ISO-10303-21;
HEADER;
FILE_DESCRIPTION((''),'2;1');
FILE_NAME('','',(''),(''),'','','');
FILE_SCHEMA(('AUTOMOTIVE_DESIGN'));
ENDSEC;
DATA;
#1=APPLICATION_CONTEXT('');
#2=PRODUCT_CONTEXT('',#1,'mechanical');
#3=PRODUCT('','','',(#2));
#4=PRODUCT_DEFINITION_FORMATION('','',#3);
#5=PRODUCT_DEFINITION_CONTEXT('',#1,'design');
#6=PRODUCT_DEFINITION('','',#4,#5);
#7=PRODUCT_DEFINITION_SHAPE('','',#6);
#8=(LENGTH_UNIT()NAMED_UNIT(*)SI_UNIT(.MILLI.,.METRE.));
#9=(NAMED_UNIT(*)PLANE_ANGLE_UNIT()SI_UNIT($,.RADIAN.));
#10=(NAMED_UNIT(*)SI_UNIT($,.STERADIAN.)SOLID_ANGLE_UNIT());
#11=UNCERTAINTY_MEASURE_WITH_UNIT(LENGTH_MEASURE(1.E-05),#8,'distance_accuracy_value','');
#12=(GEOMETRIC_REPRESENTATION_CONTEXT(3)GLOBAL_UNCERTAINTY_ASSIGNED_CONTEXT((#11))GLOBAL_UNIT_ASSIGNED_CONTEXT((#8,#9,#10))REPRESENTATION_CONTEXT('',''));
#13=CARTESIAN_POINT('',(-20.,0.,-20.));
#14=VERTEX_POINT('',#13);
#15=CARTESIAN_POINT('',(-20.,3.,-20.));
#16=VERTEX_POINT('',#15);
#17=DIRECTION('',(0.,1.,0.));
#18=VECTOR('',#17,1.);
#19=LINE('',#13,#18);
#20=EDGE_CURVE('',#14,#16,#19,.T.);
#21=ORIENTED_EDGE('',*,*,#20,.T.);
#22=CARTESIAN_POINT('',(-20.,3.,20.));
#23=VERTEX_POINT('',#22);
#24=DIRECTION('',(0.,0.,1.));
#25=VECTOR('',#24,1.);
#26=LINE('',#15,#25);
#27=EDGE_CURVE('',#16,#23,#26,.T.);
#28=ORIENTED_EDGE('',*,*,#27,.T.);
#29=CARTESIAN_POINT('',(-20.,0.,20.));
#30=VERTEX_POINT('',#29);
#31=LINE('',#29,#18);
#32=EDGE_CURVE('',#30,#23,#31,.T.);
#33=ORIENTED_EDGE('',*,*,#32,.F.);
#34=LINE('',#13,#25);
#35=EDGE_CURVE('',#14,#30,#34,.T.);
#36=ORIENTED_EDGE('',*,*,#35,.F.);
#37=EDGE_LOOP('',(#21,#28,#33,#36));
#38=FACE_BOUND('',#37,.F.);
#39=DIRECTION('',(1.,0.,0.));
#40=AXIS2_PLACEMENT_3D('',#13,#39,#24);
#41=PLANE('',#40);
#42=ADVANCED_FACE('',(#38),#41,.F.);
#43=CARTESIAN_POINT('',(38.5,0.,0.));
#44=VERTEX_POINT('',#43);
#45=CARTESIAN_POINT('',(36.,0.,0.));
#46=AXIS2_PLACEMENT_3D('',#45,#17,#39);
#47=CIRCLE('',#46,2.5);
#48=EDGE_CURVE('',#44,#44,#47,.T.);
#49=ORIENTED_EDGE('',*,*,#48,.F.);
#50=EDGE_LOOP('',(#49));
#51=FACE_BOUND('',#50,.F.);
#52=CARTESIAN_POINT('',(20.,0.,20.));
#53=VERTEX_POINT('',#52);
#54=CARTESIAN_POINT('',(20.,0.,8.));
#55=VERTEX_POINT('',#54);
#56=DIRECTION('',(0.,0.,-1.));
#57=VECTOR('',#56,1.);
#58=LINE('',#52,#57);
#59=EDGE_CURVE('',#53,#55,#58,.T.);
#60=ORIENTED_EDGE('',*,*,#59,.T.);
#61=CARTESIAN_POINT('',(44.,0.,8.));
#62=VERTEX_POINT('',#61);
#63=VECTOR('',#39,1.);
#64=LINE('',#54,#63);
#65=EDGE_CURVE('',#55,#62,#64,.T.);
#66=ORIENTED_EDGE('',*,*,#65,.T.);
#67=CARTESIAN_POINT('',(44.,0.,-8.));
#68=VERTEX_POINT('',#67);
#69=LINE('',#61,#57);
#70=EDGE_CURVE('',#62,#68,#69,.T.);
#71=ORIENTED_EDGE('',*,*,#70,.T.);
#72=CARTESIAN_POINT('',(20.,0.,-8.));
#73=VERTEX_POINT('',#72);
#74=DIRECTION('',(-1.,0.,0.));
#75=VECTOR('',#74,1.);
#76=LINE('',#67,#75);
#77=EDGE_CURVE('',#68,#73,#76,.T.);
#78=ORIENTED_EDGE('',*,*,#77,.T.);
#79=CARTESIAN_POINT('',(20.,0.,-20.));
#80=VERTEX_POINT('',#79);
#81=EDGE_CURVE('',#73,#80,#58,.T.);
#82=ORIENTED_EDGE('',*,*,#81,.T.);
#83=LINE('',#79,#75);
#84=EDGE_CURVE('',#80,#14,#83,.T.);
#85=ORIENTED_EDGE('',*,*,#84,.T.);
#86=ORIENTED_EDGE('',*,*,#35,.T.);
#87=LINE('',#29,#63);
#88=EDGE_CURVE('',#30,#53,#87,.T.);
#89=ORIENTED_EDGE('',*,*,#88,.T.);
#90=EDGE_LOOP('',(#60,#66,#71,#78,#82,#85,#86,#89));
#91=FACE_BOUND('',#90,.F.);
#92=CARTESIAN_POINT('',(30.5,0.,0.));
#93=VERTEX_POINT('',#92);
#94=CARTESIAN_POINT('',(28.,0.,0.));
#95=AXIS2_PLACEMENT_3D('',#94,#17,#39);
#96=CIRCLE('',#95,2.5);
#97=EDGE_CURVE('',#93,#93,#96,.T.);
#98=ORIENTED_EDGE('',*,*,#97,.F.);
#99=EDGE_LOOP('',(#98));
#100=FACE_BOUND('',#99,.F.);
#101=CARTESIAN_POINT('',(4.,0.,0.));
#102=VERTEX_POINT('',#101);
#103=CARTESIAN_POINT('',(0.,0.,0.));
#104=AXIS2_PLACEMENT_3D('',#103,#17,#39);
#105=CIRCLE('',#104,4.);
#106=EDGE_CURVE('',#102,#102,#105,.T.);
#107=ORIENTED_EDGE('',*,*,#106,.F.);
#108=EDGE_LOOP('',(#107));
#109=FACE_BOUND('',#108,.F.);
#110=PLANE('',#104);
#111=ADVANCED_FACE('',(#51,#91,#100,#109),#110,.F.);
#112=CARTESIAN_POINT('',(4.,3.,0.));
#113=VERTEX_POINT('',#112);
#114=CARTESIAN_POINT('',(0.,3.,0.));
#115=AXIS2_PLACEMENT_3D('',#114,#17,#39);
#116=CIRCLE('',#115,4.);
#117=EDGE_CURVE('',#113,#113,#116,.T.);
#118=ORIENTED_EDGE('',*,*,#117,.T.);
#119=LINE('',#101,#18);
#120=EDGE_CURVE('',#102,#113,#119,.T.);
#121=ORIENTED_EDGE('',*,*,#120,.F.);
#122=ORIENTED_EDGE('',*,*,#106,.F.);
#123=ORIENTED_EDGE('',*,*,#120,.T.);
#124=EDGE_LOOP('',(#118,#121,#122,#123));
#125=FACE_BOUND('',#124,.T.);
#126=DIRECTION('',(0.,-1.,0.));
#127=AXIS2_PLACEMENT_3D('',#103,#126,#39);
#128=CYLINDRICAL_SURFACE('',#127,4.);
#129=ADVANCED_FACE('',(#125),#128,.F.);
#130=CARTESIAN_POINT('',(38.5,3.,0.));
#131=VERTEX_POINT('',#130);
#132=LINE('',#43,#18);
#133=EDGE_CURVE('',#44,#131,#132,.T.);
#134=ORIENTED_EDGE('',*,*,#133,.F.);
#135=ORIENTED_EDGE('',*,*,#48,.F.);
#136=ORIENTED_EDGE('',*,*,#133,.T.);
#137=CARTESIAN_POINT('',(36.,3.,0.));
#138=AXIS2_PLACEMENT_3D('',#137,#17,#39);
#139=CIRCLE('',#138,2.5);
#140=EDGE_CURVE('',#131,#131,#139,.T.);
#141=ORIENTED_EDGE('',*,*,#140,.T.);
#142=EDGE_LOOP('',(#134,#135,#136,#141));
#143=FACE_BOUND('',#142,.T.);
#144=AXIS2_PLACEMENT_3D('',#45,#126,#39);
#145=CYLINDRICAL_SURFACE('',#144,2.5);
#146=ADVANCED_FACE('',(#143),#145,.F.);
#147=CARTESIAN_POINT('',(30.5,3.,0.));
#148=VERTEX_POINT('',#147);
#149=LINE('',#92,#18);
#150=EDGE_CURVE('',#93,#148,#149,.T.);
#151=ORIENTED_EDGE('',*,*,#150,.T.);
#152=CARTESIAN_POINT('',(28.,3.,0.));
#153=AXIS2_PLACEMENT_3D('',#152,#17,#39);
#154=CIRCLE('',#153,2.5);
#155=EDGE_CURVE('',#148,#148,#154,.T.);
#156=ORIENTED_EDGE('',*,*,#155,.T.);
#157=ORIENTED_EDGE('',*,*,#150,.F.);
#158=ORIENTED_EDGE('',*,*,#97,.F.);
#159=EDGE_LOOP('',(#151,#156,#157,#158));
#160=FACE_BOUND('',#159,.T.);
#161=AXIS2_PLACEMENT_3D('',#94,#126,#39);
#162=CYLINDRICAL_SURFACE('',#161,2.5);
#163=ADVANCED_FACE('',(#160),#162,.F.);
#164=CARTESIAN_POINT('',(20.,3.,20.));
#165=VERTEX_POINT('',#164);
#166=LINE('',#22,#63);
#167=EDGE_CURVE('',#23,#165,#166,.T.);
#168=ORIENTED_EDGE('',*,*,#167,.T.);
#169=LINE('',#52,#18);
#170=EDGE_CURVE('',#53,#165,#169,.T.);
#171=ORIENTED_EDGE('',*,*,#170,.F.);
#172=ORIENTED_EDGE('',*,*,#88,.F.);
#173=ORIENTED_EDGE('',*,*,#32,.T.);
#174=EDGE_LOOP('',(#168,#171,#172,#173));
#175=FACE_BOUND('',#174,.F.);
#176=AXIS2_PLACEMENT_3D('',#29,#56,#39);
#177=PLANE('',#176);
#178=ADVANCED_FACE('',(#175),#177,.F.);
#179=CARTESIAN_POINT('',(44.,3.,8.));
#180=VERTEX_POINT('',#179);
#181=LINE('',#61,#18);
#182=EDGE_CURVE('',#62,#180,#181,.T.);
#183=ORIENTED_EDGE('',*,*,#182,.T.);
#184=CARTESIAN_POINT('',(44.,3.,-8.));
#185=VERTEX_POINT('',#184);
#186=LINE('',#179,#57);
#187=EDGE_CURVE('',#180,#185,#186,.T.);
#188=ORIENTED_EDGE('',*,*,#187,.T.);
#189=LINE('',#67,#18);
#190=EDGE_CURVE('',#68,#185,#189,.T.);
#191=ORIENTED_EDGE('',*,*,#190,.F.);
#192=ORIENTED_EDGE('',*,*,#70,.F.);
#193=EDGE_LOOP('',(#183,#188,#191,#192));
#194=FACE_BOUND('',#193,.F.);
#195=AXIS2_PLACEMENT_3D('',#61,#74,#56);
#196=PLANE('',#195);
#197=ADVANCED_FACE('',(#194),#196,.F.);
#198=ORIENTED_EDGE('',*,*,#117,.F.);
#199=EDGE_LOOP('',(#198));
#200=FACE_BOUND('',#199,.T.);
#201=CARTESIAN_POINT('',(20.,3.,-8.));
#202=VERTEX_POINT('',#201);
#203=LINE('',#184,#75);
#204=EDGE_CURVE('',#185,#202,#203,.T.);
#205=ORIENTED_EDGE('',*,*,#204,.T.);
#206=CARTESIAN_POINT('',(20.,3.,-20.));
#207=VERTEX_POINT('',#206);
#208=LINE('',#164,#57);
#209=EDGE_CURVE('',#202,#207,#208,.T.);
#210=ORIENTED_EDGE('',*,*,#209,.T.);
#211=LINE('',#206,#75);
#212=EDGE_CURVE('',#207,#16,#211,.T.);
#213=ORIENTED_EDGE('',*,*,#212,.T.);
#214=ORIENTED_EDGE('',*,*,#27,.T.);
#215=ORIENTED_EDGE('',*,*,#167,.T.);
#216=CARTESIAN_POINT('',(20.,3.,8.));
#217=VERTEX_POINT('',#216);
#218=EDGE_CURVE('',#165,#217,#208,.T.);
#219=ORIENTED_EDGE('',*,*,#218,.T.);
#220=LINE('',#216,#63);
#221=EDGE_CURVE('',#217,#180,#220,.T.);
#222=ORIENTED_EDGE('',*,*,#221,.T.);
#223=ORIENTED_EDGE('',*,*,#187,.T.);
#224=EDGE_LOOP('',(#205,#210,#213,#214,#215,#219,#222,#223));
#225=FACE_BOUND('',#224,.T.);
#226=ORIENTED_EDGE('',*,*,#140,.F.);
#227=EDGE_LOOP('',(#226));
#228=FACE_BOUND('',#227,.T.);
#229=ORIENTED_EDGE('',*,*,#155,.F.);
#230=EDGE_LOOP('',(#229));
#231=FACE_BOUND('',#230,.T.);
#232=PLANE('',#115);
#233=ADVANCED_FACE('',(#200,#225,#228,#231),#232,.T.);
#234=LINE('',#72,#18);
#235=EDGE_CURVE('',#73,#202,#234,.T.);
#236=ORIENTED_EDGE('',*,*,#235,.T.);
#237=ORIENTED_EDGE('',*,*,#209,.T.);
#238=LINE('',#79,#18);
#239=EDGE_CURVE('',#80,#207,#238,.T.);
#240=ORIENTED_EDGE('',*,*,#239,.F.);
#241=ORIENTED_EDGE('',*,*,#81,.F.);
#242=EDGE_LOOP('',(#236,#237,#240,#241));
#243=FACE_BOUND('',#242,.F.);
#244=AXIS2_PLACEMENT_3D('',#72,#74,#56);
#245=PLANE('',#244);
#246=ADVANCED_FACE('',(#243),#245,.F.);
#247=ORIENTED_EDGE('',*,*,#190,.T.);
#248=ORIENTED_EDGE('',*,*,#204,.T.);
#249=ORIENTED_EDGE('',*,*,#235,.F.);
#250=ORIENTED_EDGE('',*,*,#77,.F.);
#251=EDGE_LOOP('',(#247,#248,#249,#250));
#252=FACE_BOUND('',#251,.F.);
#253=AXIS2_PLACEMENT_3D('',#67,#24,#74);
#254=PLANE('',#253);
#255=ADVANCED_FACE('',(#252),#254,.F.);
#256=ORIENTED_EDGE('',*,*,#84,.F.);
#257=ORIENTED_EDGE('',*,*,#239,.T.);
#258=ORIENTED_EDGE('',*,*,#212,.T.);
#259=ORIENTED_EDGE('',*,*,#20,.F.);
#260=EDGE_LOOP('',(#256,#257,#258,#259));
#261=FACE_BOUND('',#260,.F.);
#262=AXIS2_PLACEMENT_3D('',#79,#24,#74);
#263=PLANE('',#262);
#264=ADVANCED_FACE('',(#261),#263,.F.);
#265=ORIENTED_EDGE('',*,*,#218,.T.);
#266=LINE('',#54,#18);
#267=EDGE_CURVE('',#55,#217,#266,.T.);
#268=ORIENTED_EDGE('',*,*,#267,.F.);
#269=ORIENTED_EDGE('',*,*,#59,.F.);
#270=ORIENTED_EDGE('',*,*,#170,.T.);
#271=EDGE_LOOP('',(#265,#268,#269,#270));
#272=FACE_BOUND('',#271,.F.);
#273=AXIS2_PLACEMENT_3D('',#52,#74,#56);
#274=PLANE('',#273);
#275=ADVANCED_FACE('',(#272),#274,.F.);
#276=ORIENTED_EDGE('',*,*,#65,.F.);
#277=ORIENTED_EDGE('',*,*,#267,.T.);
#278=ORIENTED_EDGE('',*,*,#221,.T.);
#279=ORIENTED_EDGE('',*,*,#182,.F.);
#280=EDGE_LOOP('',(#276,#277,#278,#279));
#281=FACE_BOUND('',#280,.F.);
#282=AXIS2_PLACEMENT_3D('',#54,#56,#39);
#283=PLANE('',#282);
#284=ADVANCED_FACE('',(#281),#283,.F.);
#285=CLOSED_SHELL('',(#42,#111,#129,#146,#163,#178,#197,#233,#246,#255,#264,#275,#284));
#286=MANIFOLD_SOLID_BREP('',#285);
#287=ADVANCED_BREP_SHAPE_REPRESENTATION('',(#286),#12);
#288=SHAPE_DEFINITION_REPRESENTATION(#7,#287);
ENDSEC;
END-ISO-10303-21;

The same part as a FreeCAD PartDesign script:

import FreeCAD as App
import Part
import Sketcher
Q = App.Units.Quantity


def add_polygon(sketch, points):
    """Adds a closed chain of lines whose ends are joined by coincident constraints."""
    first, n = sketch.GeometryCount, len(points)
    for a, b in zip(points, points[1:] + points[:1]):
        sketch.addGeometry(Part.LineSegment(App.Vector(*a, 0), App.Vector(*b, 0)), False)
    for i in range(n):
        sketch.addConstraint(Sketcher.Constraint("Coincident", first + i, 2, first + (i + 1) % n, 1))

doc = App.newDocument("Part")
params = doc.addObject("Spreadsheet::Sheet", "Params")
for row, (alias, value) in enumerate([
    ("sketch1_diameter", "8 mm"),
    ("sketch1_diameter2", "5 mm"),
    ("sketch1_width", "40 mm"),
    ("sketch1_width2", "24 mm"),
    ("sketch1_height", "12 mm"),
    ("pad1_length", "3 mm"),
], start=1):
    params.set(f"A{row}", alias)
    params.set(f"B{row}", "=" + value)
    params.setAlias(f"B{row}", alias)

body = doc.addObject("PartDesign::Body", "Body")

# Sketch on XZ plane
sketch1 = body.newObject("Sketcher::SketchObject", "Sketch")
sketch1.AttachmentSupport = (doc.getObject("XZ_Plane"), [""])
sketch1.MapMode = "FlatFace"
add_polygon(sketch1, [(20, -8), (20, -20), (-20, -20), (-20, 20), (20, 20), (20, 8), (44, 8), (44, -8)])  # lines 0-7
sketch1.addGeometry(Part.Circle(App.Vector(0, 0, 0), App.Vector(0, 0, 1), 4), False)  # 8
sketch1.addGeometry(Part.Circle(App.Vector(36, 0, 0), App.Vector(0, 0, 1), 2.5), False)  # 9
sketch1.addGeometry(Part.Circle(App.Vector(28, 0, 0), App.Vector(0, 0, 1), 2.5), False)  # 10
sketch1.addConstraint([
    Sketcher.Constraint("Vertical", 0),
    Sketcher.Constraint("Horizontal", 1),
    Sketcher.Constraint("Vertical", 2),
    Sketcher.Constraint("Horizontal", 3),
    Sketcher.Constraint("Vertical", 4),
    Sketcher.Constraint("Horizontal", 5),
    Sketcher.Constraint("Vertical", 6),
    Sketcher.Constraint("Horizontal", 7),
    Sketcher.Constraint("Coincident", 8, 3, -1, 1),
    Sketcher.Constraint("Equal", 9, 10),
    Sketcher.Constraint("Symmetric", 0, 2, 2, 2, -1, 1),
    Sketcher.Constraint("Symmetric", 4, 2, 7, 2, -1),
    Sketcher.Constraint("PointOnObject", 9, 3, -1),
    Sketcher.Constraint("PointOnObject", 10, 3, -1),
    Sketcher.Constraint("Equal", 3, 2),
    Sketcher.Constraint("Diameter", 8, Q("8 mm")),
    Sketcher.Constraint("Diameter", 9, Q("5 mm")),
    Sketcher.Constraint("DistanceX", 1, 2, 1, 1, Q("40 mm")),
    Sketcher.Constraint("DistanceX", 5, 1, 5, 2, Q("24 mm")),
    Sketcher.Constraint("DistanceY", 0, 2, 0, 1, Q("12 mm")),
    Sketcher.Constraint("DistanceX", 10, 3, 9, 3, Q("8 mm")),
    Sketcher.Constraint("DistanceX", 0, 2, 10, 3, Q("8 mm")),
])
sketch1.setExpression("Constraints[23]", "Params.sketch1_diameter")
sketch1.setExpression("Constraints[24]", "Params.sketch1_diameter2")
sketch1.setExpression("Constraints[25]", "Params.sketch1_width")
sketch1.setExpression("Constraints[26]", "Params.sketch1_width2")
sketch1.setExpression("Constraints[27]", "Params.sketch1_height")
pad1 = body.newObject("PartDesign::Pad", "Pad")
pad1.Profile = sketch1
pad1.setExpression("Length", "Params.pad1_length")
pad1.Reversed = True

doc.recompute()
